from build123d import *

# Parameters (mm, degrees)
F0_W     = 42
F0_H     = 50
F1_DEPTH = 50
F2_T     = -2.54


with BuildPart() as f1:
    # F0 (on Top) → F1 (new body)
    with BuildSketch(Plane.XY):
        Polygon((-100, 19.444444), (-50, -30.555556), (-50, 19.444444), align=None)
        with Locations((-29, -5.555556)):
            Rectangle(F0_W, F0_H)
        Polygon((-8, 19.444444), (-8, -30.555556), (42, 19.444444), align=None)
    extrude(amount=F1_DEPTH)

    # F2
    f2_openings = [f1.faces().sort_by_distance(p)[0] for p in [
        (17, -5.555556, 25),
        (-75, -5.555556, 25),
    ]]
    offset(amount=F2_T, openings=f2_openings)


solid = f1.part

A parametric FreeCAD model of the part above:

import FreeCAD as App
import Part
import Sketcher


def faces_at(feature, points):
    """Names of the faces that lie closest to the given points."""
    faces = feature.Shape.Faces
    near = lambda p: min(range(len(faces)), key=lambda i: faces[i].distToShape(Part.Vertex(*p))[0])
    return sorted({f"Face{near(p) + 1}" for p in points})

doc = App.newDocument("Part")
body = doc.addObject("PartDesign::Body", "Body")

# Sketch on XY plane
sketch1 = body.newObject("Sketcher::SketchObject", "Sketch")
sketch1.AttachmentSupport = (doc.getObject("XY_Plane"), [""])
sketch1.MapMode = "FlatFace"
sketch1.addGeometry([
    Part.LineSegment(App.Vector(-100, 19.444444, 0), App.Vector(-50, -30.555556, 0)),
    Part.LineSegment(App.Vector(-50, -30.555556, 0), App.Vector(-8, -30.555556, 0)),
    Part.LineSegment(App.Vector(-8, -30.555556, 0), App.Vector(42, 19.444444, 0)),
    Part.LineSegment(App.Vector(42, 19.444444, 0), App.Vector(-100, 19.444444, 0)),
], False)
sketch1.addConstraint([
    Sketcher.Constraint("Coincident", 0, 2, 1, 1),
    Sketcher.Constraint("Coincident", 1, 2, 2, 1),
    Sketcher.Constraint("Coincident", 2, 2, 3, 1),
    Sketcher.Constraint("Coincident", 3, 2, 0, 1),
    Sketcher.Constraint("Horizontal", 1),
    Sketcher.Constraint("Horizontal", 3),
    Sketcher.Constraint("Perpendicular", 0, 2),
    Sketcher.Constraint("Equal", 0, 2),
    Sketcher.Constraint("DistanceX", 1, 1, 1, 2, 42.0),
    Sketcher.Constraint("DistanceX", 3, 2, 3, 1, 142.0),
    Sketcher.Constraint("DistanceX", 0, 2, -1, 1, 50.0),
    Sketcher.Constraint("DistanceY", 0, 2, -1, 1, 30.555556),
])
pad1 = body.newObject("PartDesign::Pad", "Pad")
pad1.Profile = sketch1
pad1.Length = 50
doc.recompute()

thickness = body.newObject("PartDesign::Thickness", "Thickness")
thickness.Base = (pad1, faces_at(pad1, [(17, -5.556, 25), (-75, -5.556, 25)]))
thickness.Value = 2.54
thickness.Reversed = True
thickness.Join = "Arc"

doc.recompute()
